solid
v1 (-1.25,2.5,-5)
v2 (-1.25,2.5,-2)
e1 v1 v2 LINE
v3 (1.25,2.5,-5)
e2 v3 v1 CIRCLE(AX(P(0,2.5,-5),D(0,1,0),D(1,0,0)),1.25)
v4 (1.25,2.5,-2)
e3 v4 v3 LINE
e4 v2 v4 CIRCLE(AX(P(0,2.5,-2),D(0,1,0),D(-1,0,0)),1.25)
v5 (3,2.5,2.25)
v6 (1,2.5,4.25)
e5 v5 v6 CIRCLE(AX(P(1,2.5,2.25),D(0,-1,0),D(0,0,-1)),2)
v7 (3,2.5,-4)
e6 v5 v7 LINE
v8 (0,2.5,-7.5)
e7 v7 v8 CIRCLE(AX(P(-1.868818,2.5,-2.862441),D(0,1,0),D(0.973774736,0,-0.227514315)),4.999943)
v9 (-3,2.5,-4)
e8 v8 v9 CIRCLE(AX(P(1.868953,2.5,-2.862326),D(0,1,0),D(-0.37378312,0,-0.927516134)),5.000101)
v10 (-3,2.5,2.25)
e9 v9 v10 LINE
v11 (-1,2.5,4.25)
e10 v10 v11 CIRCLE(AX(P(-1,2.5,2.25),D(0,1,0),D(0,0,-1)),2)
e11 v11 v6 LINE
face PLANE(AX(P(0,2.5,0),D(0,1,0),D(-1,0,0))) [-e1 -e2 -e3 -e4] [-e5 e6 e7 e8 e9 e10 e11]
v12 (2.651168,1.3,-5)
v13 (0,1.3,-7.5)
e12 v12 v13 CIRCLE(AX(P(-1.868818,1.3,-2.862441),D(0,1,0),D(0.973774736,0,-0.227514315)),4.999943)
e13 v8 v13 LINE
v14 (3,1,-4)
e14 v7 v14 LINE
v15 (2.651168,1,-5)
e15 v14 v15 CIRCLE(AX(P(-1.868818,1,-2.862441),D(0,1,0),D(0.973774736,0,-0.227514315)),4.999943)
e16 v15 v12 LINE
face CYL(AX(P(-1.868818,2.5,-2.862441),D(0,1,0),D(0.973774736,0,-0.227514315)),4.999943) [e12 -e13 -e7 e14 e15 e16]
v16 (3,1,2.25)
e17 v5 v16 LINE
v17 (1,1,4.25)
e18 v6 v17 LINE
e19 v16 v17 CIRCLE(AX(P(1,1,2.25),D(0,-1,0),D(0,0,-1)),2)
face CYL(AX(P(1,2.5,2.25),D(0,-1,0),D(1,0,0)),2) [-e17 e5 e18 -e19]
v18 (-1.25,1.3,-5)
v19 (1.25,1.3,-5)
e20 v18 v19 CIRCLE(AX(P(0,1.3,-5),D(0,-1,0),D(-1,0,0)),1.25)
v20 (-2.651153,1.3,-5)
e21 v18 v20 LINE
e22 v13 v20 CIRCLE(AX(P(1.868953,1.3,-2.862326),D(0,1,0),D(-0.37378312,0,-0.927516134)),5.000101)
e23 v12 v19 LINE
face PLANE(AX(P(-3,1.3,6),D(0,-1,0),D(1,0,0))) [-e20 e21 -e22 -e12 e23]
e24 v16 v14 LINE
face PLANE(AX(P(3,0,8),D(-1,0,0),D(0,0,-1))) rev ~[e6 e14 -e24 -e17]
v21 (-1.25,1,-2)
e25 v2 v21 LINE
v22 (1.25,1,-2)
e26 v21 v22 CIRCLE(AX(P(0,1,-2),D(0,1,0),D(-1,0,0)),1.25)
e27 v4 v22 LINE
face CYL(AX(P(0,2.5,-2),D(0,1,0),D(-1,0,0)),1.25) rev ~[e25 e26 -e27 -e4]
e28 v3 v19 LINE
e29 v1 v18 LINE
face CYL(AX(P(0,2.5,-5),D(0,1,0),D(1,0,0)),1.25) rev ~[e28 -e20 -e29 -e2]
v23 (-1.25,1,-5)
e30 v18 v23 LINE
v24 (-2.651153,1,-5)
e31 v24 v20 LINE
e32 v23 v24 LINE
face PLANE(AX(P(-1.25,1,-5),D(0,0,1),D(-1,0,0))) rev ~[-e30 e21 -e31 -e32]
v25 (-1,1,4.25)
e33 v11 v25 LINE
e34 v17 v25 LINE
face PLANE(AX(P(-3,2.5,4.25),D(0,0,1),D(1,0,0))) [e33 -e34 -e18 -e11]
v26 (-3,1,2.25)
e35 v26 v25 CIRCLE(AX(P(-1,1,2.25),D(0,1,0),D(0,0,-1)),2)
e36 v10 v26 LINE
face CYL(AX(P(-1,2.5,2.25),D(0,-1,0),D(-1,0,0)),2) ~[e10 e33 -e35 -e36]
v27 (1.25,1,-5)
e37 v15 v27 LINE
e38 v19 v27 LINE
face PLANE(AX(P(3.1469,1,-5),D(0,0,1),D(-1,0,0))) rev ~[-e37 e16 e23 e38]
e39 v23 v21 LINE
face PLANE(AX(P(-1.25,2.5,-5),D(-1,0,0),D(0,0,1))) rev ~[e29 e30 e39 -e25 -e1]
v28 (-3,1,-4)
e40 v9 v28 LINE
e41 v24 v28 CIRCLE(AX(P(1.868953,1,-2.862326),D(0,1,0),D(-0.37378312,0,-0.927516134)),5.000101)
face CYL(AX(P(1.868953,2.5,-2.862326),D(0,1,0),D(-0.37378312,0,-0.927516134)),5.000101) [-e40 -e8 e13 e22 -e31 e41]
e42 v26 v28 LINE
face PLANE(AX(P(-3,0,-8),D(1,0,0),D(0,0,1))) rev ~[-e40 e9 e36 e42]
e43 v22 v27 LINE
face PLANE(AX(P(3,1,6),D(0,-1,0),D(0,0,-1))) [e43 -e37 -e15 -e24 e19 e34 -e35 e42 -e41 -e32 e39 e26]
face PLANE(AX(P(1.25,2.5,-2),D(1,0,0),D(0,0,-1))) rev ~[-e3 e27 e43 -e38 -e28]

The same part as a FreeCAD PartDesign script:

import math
import FreeCAD as App
import Part
import Sketcher
from FreeCAD import Vector
Q = App.Units.Quantity


def edges_at(feature, points):
    """Names of the edges that pass closest to the given points."""
    edges = feature.Shape.Edges
    near = lambda p: min(range(len(edges)), key=lambda i: edges[i].distToShape(Part.Vertex(*p))[0])
    return sorted({f"Edge{near(p) + 1}" for p in points})


def add_polygon(sketch, points):
    """Adds a closed chain of lines whose ends are joined by coincident constraints."""
    first, n = sketch.GeometryCount, len(points)
    for a, b in zip(points, points[1:] + points[:1]):
        sketch.addGeometry(Part.LineSegment(App.Vector(*a, 0), App.Vector(*b, 0)), False)
    for i in range(n):
        sketch.addConstraint(Sketcher.Constraint("Coincident", first + i, 2, first + (i + 1) % n, 1))

doc = App.newDocument("Part")
body = doc.addObject("PartDesign::Body", "Body")

# Sketch on XZ plane
sketch1 = body.newObject("Sketcher::SketchObject", "Sketch")
sketch1.AttachmentSupport = (doc.getObject("XZ_Plane"), [""])
sketch1.MapMode = "FlatFace"
add_polygon(sketch1, [(3, 8), (3, -8), (-3, -8), (-3, 8)])  # lines 0-3
sketch1.addConstraint([
    Sketcher.Constraint("Vertical", 0),
    Sketcher.Constraint("Horizontal", 1),
    Sketcher.Constraint("Vertical", 2),
    Sketcher.Constraint("Horizontal", 3),
    Sketcher.Constraint("Symmetric", 0, 2, 2, 2, -1, 1),
    Sketcher.Constraint("DistanceX", 1, 2, 1, 1, Q("6 mm")),
    Sketcher.Constraint("DistanceY", 0, 2, 0, 1, Q("16 mm")),
])
pad1 = body.newObject("PartDesign::Pad", "Pad")
pad1.Profile = sketch1
pad1.Length = 2.5
pad1.Reversed = True

# Sketch on XZ plane
sketch2 = body.newObject("Sketcher::SketchObject", "Sketch001")
sketch2.AttachmentSupport = (doc.getObject("XZ_Plane"), [""])
sketch2.MapMode = "FlatFace"
sketch2.AttachmentOffset = App.Placement(Vector(0, 0, -2.5), App.Rotation())
sketch2.addGeometry([
    Part.ArcOfCircle(Part.Circle(Vector(0, -5, 0), Vector(0, 0, 1), 1.2), math.radians(180), math.radians(360)),
    Part.LineSegment(Vector(-1.2, -5, 0), Vector(-1.2, -2, 0)),
    Part.ArcOfCircle(Part.Circle(Vector(0, -2, 0), Vector(0, 0, 1), 1.2), math.radians(0), math.radians(180)),
    Part.LineSegment(Vector(1.2, -2, 0), Vector(1.2, -5, 0)),
], False)
sketch2.addConstraint([
    Sketcher.Constraint("Tangent", 0, 1, 1, 1),
    Sketcher.Constraint("Tangent", 1, 2, 2, 2),
    Sketcher.Constraint("Tangent", 2, 1, 3, 1),
    Sketcher.Constraint("Tangent", 3, 2, 0, 2),
    Sketcher.Constraint("Vertical", 1),
    Sketcher.Constraint("Vertical", 3),
    Sketcher.Constraint("PointOnObject", 0, 3, -2),
    Sketcher.Constraint("DistanceY", 1, 1, 1, 2, Q("3 mm")),
    Sketcher.Constraint("Radius", 0, Q("1.25 mm")),
    Sketcher.Constraint("DistanceY", 0, 3, -1, 1, Q("5 mm")),
])
pocket1 = body.newObject("PartDesign::Pocket", "Pocket")
pocket1.Profile = sketch2
pocket1.Type = "ThroughAll"
pocket1.Reversed = True

# Sketch on YZ plane
sketch3 = body.newObject("Sketcher::SketchObject", "Sketch002")
sketch3.AttachmentSupport = (doc.getObject("YZ_Plane"), [""])
sketch3.MapMode = "FlatFace"
sketch3.AttachmentOffset = App.Placement(Vector(0, 0, 3), App.Rotation())
add_polygon(sketch3, [(0, 6), (0, -8), (1, -8), (1, 6)])  # lines 0-3
sketch3.addConstraint([
    Sketcher.Constraint("Vertical", 0),
    Sketcher.Constraint("Horizontal", 1),
    Sketcher.Constraint("Vertical", 2),
    Sketcher.Constraint("Horizontal", 3),
    Sketcher.Constraint("PointOnObject", 0, 2, -2),
    Sketcher.Constraint("DistanceX", 1, 1, 1, 2, Q("1 mm")),
    Sketcher.Constraint("DistanceY", 0, 2, 0, 1, Q("14 mm")),
    Sketcher.Constraint("DistanceY", 0, 2, -1, 1, Q("8 mm")),
])
pocket2 = body.newObject("PartDesign::Pocket", "Pocket001")
pocket2.Profile = sketch3
pocket2.Type = "ThroughAll"

# Sketch on XZ plane
sketch4 = body.newObject("Sketcher::SketchObject", "Sketch003")
sketch4.AttachmentSupport = (doc.getObject("XZ_Plane"), [""])
sketch4.MapMode = "FlatFace"
sketch4.AttachmentOffset = App.Placement(Vector(0, 0, -2.5), App.Rotation())
sketch4.addGeometry([
    Part.ArcOfCircle(Part.Circle(Vector(0, 4.8, 0), Vector(0, 0, 1), 3.2), math.radians(90), math.radians(157)),  # 0
    Part.LineSegment(Vector(-3, 6, 0), Vector(-3, 8, 0)),  # 1
    Part.LineSegment(Vector(-3, 8, 0), Vector(0, 8, 0)),  # 2
    Part.ArcOfCircle(Part.Circle(Vector(0, 4.8, 0), Vector(0, 0, 1), 3.2), math.radians(23), math.radians(90)),  # 3
    Part.LineSegment(Vector(0, 8, 0), Vector(3, 8, 0)),  # 4
    Part.LineSegment(Vector(3, 8, 0), Vector(3, 6, 0)),  # 5
], False)
sketch4.addConstraint([
    Sketcher.Constraint("Coincident", 0, 2, 1, 1),
    Sketcher.Constraint("Coincident", 1, 2, 2, 1),
    Sketcher.Constraint("Tangent", 2, 2, 0, 1),
    Sketcher.Constraint("Tangent", 3, 2, 4, 1),
    Sketcher.Constraint("Coincident", 4, 2, 5, 1),
    Sketcher.Constraint("Coincident", 5, 2, 3, 1),
    Sketcher.Constraint("Vertical", 1),
    Sketcher.Constraint("Horizontal", 2),
    Sketcher.Constraint("Horizontal", 4),
    Sketcher.Constraint("Vertical", 5),
    Sketcher.Constraint("Coincident", 3, 3, 0, 3),
    Sketcher.Constraint("Equal", 0, 3),
    Sketcher.Constraint("Symmetric", 0, 2, 5, 2, -2),
    Sketcher.Constraint("DistanceY", 1, 1, 1, 2, Q("2 mm")),
    Sketcher.Constraint("DistanceX", 2, 1, 2, 2, Q("3 mm")),
    Sketcher.Constraint("DistanceY", -1, 1, 0, 2, Q("6 mm")),
])
pocket3 = body.newObject("PartDesign::Pocket", "Pocket002")
pocket3.Profile = sketch4
pocket3.Type = "ThroughAll"
pocket3.Reversed = True

# Sketch on XZ plane
sketch5 = body.newObject("Sketcher::SketchObject", "Sketch004")
sketch5.AttachmentSupport = (doc.getObject("XZ_Plane"), [""])
sketch5.MapMode = "FlatFace"
sketch5.AttachmentOffset = App.Placement(Vector(0, 0, -2.5), App.Rotation())
sketch5.addGeometry([
    Part.ArcOfCircle(Part.Circle(Vector(-1.9, -2.9, 0), Vector(0, 0, 1), 5), math.radians(-68), math.radians(-13)),  # 0
    Part.LineSegment(Vector(3, -4, 0), Vector(3, -8, 0)),  # 1
    Part.LineSegment(Vector(3, -8, 0), Vector(-3, -8, 0)),  # 2
    Part.LineSegment(Vector(-3, -8, 0), Vector(-3, -4, 0)),  # 3
    Part.ArcOfCircle(Part.Circle(Vector(1.9, -2.9, 0), Vector(0, 0, 1), 5), math.radians(-167), math.radians(-112)),  # 4
], False)
sketch5.addConstraint([
    Sketcher.Constraint("Coincident", 0, 2, 1, 1),
    Sketcher.Constraint("Coincident", 1, 2, 2, 1),
    Sketcher.Constraint("Coincident", 2, 2, 3, 1),
    Sketcher.Constraint("Coincident", 3, 2, 4, 1),
    Sketcher.Constraint("Coincident", 4, 2, 0, 1),
    Sketcher.Constraint("Vertical", 1),
    Sketcher.Constraint("Horizontal", 2),
    Sketcher.Constraint("Vertical", 3),
    Sketcher.Constraint("Equal", 0, 4),
    Sketcher.Constraint("Symmetric", 0, 3, 4, 3, -2),
    Sketcher.Constraint("Horizontal", 0, 2, 3, 2),
    Sketcher.Constraint("Radius", 0, Q("5 mm")),
    Sketcher.Constraint("DistanceY", 1, 2, 1, 1, Q("4 mm")),
    Sketcher.Constraint("DistanceY", 0, 2, -1, 1, Q("4 mm")),
    Sketcher.Constraint("DistanceY", 2, 2, 4, 2, Q("0.5 mm")),
    Sketcher.Constraint("DistanceX", 2, 2, 2, 1, Q("6 mm")),
])
pocket4 = body.newObject("PartDesign::Pocket", "Pocket003")
pocket4.Profile = sketch5
pocket4.Type = "ThroughAll"
pocket4.Reversed = True

# Sketch on XZ plane
sketch6 = body.newObject("Sketcher::SketchObject", "Sketch005")
sketch6.AttachmentSupport = (doc.getObject("XZ_Plane"), [""])
sketch6.MapMode = "FlatFace"
sketch6.AttachmentOffset = App.Placement(Vector(0, 0, -1), App.Rotation())
sketch6.addGeometry([
    Part.LineSegment(Vector(3.1, -7.5, 0), Vector(3.1, -5, 0)),  # 0
    Part.LineSegment(Vector(3.1, -5, 0), Vector(1.2, -5, 0)),  # 1
    Part.ArcOfCircle(Part.Circle(Vector(0, -5, 0), Vector(0, 0, 1), 1.2), math.radians(180), math.radians(360)),  # 2
    Part.LineSegment(Vector(-1.2, -5, 0), Vector(-3, -5, 0)),  # 3
    Part.LineSegment(Vector(-3, -5, 0), Vector(-3, -7.5, 0)),  # 4
    Part.LineSegment(Vector(-3, -7.5, 0), Vector(3.1, -7.5, 0)),  # 5
], False)
sketch6.addConstraint([
    Sketcher.Constraint("Coincident", 0, 2, 1, 1),
    Sketcher.Constraint("Coincident", 1, 2, 2, 2),
    Sketcher.Constraint("Coincident", 2, 1, 3, 1),
    Sketcher.Constraint("Coincident", 3, 2, 4, 1),
    Sketcher.Constraint("Coincident", 4, 2, 5, 1),
    Sketcher.Constraint("Coincident", 5, 2, 0, 1),
    Sketcher.Constraint("Vertical", 0),
    Sketcher.Constraint("Horizontal", 1),
    Sketcher.Constraint("Horizontal", 3),
    Sketcher.Constraint("Vertical", 4),
    Sketcher.Constraint("Horizontal", 5),
    Sketcher.Constraint("Symmetric", 1, 2, 2, 1, -2),
    Sketcher.Constraint("Horizontal", 2, 3, 0, 2),
    Sketcher.Constraint("Radius", 2, Q("1.25 mm")),
    Sketcher.Constraint("DistanceY", 0, 1, 0, 2, Q("2.5 mm")),
    Sketcher.Constraint("DistanceY", 2, 3, -1, 1, Q("5 mm")),
    Sketcher.Constraint("DistanceX", 3, 2, 3, 1, Q("1.78 mm")),
    Sketcher.Constraint("DistanceX", 1, 2, 1, 1, Q("1.897 mm")),
])
pocket5 = body.newObject("PartDesign::Pocket", "Pocket004")
pocket5.Profile = sketch6
pocket5.Length = 0.3

# Sketch on XZ plane
sketch7 = body.newObject("Sketcher::SketchObject", "Sketch006")
sketch7.AttachmentSupport = (doc.getObject("XZ_Plane"), [""])
sketch7.MapMode = "FlatFace"
sketch7.AttachmentOffset = App.Placement(Vector(0, 0, -2.5), App.Rotation())
sketch7.addGeometry([
    Part.ArcOfCircle(Part.Circle(Vector(0, 4.8, 0), Vector(0, 0, 1), 3.2), math.radians(23), math.radians(157)),
    Part.LineSegment(Vector(3, 6, 0), Vector(3, 4.2, 0)),
    Part.LineSegment(Vector(3, 4.2, 0), Vector(-3, 4.2, 0)),
    Part.LineSegment(Vector(-3, 4.2, 0), Vector(-3, 6, 0)),
], False)
sketch7.addConstraint([
    Sketcher.Constraint("Coincident", 0, 1, 1, 1),
    Sketcher.Constraint("Coincident", 1, 2, 2, 1),
    Sketcher.Constraint("Coincident", 2, 2, 3, 1),
    Sketcher.Constraint("Coincident", 3, 2, 0, 2),
    Sketcher.Constraint("Vertical", 1),
    Sketcher.Constraint("Horizontal", 2),
    Sketcher.Constraint("Vertical", 3),
    Sketcher.Constraint("Symmetric", 0, 1, 3, 2, -2),
    Sketcher.Constraint("DistanceX", 2, 2, 2, 1, Q("6 mm")),
    Sketcher.Constraint("Radius", 0, Q("3.25 mm")),
    Sketcher.Constraint("DistanceY", -1, 1, 0, 1, Q("6 mm")),
    Sketcher.Constraint("DistanceY", 1, 2, 1, 1, Q("1.75 mm")),
])
pocket6 = body.newObject("PartDesign::Pocket", "Pocket005")
pocket6.Profile = sketch7
pocket6.Type = "ThroughAll"
pocket6.Reversed = True
doc.recompute()

fillet = body.newObject("PartDesign::Fillet", "Fillet")
fillet.Base = (pocket6, edges_at(pocket6, [(3, 1.75, 4.25), (-3, 1.75, 4.25)]))
fillet.Radius = 2

doc.recompute()
